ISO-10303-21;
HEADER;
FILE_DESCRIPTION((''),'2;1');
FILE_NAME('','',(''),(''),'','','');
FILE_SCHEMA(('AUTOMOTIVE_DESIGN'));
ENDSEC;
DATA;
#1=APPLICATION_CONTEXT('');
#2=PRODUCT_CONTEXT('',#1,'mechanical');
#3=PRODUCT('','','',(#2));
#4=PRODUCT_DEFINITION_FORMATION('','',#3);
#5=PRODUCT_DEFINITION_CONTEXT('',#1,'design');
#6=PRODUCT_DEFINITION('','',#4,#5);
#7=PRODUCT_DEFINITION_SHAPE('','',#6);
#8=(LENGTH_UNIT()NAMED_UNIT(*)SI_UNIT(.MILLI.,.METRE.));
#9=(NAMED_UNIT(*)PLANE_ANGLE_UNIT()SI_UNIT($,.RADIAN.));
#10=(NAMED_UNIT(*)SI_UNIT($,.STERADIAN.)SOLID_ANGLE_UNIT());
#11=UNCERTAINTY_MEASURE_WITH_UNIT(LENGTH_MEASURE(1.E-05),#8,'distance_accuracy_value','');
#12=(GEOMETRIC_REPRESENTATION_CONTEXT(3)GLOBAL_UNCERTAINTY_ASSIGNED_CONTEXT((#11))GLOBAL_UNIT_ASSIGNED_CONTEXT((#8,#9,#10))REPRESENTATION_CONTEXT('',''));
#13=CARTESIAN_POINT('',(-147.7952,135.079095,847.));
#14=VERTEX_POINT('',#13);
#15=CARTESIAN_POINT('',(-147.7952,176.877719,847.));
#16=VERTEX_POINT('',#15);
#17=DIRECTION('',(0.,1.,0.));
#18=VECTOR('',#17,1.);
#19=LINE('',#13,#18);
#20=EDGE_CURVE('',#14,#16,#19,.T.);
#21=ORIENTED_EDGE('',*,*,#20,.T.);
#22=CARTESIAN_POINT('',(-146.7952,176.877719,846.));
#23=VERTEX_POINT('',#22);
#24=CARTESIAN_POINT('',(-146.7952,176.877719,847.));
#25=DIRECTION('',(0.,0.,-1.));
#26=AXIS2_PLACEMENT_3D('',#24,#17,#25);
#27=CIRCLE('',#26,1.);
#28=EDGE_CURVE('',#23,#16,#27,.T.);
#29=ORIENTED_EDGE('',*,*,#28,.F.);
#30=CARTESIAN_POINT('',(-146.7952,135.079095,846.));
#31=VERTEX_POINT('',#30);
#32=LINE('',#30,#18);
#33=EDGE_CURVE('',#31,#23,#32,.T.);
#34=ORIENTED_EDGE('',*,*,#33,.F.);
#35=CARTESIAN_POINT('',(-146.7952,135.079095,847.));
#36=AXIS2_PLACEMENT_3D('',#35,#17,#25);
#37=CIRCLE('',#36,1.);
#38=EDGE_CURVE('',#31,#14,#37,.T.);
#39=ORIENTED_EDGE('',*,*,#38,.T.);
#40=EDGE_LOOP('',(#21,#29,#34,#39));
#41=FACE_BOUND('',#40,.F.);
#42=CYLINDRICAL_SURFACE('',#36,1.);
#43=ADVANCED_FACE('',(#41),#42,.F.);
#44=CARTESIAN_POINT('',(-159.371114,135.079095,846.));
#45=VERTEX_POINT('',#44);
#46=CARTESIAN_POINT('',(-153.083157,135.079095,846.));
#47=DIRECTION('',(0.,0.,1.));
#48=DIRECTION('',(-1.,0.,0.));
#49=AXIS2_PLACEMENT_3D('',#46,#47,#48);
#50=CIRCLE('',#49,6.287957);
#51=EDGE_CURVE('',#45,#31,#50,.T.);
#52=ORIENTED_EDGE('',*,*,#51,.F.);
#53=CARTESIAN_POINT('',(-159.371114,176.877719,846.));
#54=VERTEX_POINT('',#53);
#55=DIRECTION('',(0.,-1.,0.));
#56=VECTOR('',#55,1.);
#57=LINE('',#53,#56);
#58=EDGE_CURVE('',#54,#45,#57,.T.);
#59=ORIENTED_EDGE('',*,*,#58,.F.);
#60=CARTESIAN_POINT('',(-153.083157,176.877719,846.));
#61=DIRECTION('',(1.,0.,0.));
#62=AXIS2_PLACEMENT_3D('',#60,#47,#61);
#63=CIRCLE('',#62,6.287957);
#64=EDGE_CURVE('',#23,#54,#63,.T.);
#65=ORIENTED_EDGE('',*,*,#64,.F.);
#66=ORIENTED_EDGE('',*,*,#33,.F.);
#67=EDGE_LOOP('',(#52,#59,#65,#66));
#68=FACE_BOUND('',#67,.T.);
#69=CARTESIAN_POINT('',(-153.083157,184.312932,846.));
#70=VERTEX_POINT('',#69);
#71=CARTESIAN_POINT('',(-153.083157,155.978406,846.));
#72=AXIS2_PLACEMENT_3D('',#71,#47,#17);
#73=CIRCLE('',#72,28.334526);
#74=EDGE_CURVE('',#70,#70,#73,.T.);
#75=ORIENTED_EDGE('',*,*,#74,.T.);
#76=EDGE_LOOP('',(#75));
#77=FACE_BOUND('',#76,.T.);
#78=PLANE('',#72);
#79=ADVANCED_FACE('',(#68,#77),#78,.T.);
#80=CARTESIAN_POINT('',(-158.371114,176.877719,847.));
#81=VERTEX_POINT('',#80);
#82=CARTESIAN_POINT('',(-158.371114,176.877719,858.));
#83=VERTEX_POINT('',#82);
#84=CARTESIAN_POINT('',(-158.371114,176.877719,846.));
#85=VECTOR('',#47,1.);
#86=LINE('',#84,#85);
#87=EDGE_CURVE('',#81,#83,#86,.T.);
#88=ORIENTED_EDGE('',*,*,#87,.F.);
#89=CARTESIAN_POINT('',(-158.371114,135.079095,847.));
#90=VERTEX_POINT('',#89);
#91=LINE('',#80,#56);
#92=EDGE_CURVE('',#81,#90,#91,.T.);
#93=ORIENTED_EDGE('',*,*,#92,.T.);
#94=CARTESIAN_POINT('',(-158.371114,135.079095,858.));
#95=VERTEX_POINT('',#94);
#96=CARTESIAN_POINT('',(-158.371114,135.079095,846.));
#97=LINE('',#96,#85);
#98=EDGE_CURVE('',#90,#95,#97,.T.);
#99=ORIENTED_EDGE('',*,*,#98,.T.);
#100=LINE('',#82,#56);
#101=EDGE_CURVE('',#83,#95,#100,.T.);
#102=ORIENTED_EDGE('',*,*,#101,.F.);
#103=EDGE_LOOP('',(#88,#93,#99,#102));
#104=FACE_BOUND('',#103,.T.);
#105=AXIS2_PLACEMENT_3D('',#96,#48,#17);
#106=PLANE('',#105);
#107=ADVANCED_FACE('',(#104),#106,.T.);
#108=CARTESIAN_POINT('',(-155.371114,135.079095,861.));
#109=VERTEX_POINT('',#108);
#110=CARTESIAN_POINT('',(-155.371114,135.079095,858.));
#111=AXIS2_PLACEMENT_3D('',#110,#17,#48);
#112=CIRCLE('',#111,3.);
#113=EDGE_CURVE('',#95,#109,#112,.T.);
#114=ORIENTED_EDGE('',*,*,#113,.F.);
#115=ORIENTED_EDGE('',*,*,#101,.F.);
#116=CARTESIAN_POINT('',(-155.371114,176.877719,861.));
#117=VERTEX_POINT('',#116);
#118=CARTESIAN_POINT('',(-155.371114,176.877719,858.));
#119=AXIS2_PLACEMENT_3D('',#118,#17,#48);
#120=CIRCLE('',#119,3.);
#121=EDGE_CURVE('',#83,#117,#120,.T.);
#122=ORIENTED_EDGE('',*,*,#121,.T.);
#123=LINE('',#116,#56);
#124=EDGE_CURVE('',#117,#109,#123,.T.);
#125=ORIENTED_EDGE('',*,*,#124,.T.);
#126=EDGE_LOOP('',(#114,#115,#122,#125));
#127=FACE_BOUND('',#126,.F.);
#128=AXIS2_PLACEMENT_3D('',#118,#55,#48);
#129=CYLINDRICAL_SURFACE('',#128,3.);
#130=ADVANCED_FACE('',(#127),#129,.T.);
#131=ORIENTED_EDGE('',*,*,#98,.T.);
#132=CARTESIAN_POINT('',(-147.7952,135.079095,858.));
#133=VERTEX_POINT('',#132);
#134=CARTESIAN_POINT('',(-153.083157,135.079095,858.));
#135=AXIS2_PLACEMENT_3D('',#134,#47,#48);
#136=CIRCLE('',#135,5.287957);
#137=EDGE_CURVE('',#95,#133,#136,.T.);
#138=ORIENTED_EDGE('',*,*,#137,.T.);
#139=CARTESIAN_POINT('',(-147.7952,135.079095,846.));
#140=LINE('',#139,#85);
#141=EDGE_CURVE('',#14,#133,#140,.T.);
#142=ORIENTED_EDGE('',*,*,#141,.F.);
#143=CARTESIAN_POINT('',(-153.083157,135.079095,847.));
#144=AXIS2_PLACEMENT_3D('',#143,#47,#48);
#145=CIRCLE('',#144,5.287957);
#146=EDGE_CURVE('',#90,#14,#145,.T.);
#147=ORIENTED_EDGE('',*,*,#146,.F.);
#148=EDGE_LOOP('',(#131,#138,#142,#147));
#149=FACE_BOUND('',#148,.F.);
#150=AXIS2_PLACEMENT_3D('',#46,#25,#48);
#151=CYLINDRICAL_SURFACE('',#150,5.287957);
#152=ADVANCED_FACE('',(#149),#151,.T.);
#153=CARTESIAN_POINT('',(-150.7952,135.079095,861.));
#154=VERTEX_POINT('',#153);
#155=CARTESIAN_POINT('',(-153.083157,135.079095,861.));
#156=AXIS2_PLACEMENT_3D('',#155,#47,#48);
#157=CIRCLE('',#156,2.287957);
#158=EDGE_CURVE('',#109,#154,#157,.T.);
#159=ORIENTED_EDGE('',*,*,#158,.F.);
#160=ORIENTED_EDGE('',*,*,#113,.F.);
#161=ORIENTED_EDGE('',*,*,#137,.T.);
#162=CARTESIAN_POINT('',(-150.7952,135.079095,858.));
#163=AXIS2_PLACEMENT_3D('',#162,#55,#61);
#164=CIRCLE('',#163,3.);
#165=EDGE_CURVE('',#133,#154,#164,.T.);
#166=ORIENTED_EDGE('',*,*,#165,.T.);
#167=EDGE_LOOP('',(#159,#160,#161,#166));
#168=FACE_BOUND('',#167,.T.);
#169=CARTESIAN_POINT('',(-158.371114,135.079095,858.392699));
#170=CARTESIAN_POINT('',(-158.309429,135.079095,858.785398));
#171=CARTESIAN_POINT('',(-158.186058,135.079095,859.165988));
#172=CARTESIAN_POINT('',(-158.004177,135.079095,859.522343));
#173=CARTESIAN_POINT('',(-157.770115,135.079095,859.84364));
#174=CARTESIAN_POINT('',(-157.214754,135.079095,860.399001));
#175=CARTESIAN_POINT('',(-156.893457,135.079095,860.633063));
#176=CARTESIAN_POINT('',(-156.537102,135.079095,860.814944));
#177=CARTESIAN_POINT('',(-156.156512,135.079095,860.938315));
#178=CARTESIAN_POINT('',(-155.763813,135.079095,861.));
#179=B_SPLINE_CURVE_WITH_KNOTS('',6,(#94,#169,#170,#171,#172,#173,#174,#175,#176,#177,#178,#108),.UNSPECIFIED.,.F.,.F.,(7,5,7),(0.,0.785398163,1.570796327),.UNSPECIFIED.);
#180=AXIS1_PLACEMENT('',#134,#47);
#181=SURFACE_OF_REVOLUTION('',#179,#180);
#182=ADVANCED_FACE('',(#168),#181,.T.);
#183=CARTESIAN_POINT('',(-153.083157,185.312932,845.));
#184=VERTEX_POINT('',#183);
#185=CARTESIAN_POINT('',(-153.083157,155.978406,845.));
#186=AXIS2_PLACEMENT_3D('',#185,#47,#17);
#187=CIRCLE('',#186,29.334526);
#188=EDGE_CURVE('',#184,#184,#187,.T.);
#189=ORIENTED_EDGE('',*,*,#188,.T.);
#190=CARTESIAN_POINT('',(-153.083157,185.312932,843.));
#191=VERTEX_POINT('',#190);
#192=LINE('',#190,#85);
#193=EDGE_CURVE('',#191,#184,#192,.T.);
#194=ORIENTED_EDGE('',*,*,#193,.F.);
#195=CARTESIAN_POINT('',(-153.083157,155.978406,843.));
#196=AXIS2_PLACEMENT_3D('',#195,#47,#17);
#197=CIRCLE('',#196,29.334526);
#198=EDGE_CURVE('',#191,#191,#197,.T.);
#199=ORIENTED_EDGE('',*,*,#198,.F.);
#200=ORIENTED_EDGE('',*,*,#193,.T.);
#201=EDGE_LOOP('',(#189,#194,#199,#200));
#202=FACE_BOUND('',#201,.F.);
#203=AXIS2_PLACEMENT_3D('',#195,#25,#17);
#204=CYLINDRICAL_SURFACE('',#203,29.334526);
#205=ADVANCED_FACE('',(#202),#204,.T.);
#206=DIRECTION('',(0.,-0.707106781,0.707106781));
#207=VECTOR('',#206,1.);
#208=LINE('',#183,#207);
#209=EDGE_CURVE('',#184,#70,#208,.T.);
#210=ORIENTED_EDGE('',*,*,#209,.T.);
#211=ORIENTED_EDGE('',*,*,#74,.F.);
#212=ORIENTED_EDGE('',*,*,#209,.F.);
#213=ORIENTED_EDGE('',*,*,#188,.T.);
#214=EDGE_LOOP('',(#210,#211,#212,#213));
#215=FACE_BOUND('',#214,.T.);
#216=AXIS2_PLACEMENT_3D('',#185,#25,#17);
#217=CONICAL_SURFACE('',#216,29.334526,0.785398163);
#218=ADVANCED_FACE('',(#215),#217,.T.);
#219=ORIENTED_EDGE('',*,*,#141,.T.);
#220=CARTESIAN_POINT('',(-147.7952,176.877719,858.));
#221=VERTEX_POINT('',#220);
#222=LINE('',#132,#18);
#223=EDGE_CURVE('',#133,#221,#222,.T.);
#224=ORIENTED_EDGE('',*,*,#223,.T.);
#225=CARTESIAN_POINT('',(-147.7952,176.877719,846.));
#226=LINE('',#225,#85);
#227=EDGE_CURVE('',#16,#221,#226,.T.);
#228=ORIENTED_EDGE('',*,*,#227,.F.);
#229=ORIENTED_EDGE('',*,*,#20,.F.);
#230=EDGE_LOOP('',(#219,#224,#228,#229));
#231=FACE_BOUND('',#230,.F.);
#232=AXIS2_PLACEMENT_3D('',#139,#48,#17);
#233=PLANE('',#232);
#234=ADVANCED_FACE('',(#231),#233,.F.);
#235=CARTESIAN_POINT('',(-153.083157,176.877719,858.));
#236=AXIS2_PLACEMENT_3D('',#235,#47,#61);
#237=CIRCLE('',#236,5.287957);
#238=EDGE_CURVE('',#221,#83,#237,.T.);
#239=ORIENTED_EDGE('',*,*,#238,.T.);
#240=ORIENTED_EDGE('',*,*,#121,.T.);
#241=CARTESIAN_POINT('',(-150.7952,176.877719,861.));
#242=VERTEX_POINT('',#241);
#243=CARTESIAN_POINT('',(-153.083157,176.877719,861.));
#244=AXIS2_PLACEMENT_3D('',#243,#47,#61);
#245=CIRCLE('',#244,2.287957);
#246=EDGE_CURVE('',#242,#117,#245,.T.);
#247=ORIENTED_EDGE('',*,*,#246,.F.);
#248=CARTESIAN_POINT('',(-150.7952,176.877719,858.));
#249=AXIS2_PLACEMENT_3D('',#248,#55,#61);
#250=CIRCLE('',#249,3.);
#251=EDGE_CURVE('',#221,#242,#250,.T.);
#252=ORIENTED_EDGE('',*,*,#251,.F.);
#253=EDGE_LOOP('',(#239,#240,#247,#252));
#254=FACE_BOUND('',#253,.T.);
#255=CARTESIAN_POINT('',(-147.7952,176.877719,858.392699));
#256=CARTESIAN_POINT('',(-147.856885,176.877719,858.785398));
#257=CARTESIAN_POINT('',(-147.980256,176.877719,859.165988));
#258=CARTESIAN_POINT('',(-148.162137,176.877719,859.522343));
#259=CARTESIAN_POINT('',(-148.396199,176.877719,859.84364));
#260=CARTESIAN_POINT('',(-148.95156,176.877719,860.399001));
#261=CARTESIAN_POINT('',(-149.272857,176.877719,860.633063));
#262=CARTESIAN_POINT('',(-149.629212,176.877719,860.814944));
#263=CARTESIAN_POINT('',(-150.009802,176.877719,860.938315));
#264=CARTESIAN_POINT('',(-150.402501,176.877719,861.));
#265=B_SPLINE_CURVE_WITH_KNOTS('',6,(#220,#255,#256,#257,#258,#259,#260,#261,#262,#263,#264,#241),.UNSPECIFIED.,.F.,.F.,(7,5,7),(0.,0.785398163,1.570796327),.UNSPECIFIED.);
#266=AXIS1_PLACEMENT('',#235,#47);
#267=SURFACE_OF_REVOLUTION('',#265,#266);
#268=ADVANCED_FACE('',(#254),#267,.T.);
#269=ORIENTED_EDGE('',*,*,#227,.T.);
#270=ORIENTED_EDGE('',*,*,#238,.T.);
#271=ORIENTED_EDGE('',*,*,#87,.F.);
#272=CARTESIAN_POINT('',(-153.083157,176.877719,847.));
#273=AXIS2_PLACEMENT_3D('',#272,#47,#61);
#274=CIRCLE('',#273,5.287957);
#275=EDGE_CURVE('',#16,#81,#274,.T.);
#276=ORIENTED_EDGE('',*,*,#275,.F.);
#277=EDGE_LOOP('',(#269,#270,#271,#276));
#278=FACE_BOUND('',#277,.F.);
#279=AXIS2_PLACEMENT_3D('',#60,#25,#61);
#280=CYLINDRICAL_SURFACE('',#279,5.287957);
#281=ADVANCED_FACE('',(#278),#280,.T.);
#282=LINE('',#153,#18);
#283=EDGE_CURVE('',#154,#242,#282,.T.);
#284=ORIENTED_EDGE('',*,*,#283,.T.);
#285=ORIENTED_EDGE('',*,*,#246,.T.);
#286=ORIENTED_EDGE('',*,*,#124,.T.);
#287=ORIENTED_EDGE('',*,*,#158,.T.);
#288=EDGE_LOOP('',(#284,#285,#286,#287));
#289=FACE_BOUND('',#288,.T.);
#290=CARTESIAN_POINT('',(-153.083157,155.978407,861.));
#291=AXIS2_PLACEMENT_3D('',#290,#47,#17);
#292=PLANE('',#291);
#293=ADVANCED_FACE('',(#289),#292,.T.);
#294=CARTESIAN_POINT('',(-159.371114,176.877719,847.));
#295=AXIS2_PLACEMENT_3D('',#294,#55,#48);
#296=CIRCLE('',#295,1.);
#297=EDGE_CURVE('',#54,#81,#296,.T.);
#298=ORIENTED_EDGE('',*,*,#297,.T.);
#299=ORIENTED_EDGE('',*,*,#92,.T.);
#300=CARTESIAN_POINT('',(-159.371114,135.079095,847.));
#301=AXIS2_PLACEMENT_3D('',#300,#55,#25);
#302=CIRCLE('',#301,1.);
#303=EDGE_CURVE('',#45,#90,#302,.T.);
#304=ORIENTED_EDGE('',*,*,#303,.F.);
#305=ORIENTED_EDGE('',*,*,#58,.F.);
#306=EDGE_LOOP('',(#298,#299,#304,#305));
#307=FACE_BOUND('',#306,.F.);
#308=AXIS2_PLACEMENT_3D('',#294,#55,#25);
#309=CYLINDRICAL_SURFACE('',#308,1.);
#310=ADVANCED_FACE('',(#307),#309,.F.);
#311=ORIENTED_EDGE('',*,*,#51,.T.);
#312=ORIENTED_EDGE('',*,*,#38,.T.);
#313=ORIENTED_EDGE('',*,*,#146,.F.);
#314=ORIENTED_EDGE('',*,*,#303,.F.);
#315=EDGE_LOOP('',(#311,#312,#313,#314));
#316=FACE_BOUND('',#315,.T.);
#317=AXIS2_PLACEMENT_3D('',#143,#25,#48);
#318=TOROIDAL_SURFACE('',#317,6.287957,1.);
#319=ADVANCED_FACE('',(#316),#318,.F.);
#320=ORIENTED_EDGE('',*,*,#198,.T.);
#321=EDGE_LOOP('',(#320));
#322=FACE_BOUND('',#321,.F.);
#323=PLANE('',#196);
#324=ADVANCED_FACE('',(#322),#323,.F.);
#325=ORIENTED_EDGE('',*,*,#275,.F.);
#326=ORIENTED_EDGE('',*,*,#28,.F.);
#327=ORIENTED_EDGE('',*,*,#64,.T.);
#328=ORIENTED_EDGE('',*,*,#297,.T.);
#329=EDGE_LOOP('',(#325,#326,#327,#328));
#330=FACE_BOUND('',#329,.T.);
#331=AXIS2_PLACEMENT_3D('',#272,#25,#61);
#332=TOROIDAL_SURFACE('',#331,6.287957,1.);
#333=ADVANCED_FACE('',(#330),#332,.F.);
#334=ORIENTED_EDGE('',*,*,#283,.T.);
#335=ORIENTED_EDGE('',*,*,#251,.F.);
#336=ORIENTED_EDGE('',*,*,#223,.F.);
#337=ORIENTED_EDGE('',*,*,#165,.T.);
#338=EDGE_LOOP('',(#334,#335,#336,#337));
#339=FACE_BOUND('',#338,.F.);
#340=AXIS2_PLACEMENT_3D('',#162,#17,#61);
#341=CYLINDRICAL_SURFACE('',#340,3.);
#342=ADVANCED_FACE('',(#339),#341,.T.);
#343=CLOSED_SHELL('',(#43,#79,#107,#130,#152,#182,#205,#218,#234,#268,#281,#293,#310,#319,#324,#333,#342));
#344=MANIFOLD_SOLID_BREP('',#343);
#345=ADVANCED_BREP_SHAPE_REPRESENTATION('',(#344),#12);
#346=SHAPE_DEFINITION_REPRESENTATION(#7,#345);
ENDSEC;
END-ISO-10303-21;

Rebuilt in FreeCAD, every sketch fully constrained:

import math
import FreeCAD as App
import Part
import Sketcher

V = App.Vector


def edges_at(feature, points):
    """Names of the edges that pass closest to the given points."""
    edges = feature.Shape.Edges
    near = lambda p: min(range(len(edges)), key=lambda i: edges[i].distToShape(Part.Vertex(*p))[0])
    return sorted({f"Edge{near(p) + 1}" for p in points})

doc = App.newDocument("Part")
params = doc.addObject("Spreadsheet::Sheet", "Params")
for row, (alias, value) in enumerate([
    ("pad1_length", "3 mm"),
    ("pad2_length", "15 mm"),
    ("chamfer_size", "1 mm"),
    ("fillet_radius", "1 mm"),
    ("fillet2_radius", "3 mm"),
], start=1):
    params.set(f"A{row}", alias)
    params.set(f"B{row}", "=" + value)
    params.setAlias(f"B{row}", alias)

body = doc.addObject("PartDesign::Body", "Body")

# Sketch on XY plane
sketch1 = doc.addObject("Sketcher::SketchObject", "Sketch")
body.addObject(sketch1)
sketch1.AttachmentSupport = (doc.XY_Plane, [""])
sketch1.MapMode = "FlatFace"
sketch1.AttachmentOffset = App.Placement(V(0, 0, 843), App.Rotation())
sketch1.addGeometry(Part.Circle(V(-153, 156, 0), V(0, 0, 1), 29), False)
sketch1.addConstraint([
    Sketcher.Constraint("Diameter", 0, 58.669052),
    Sketcher.Constraint("DistanceX", 0, 3, -1, 1, 153.083157),
    Sketcher.Constraint("DistanceY", -1, 1, 0, 3, 155.978406),
])
pad1 = doc.addObject("PartDesign::Pad", "Pad")
body.addObject(pad1)
pad1.Profile = sketch1
pad1.setExpression("Length", "Params.pad1_length")

# Sketch on XY plane
sketch2 = doc.addObject("Sketcher::SketchObject", "Sketch001")
body.addObject(sketch2)
sketch2.AttachmentSupport = (doc.XY_Plane, [""])
sketch2.MapMode = "FlatFace"
sketch2.AttachmentOffset = App.Placement(V(0, 0, 846), App.Rotation())
sketch2.addGeometry([
    Part.ArcOfCircle(Part.Circle(V(-153, 135, 0), V(0, 0, 1), 5), math.radians(180), math.radians(360)),
    Part.LineSegment(V(-148, 135, 0), V(-148, 177, 0)),
    Part.ArcOfCircle(Part.Circle(V(-153, 177, 0), V(0, 0, 1), 5), math.radians(0), math.radians(180)),
    Part.LineSegment(V(-158, 177, 0), V(-158, 135, 0)),
], False)
sketch2.addConstraint([
    Sketcher.Constraint("Tangent", 0, 2, 1, 1),
    Sketcher.Constraint("Tangent", 1, 2, 2, 1),
    Sketcher.Constraint("Tangent", 2, 2, 3, 1),
    Sketcher.Constraint("Tangent", 3, 2, 0, 1),
    Sketcher.Constraint("Vertical", 1),
    Sketcher.Constraint("Vertical", 3),
    Sketcher.Constraint("Radius", 0, 5.287957),
    Sketcher.Constraint("DistanceX", 0, 2, -1, 1, 147.7952),
    Sketcher.Constraint("DistanceY", 1, 1, 1, 2, 41.798624),
    Sketcher.Constraint("DistanceY", -1, 1, 2, 3, 176.877719),
])
pad2 = doc.addObject("PartDesign::Pad", "Pad001")
body.addObject(pad2)
pad2.Profile = sketch2
pad2.setExpression("Length", "Params.pad2_length")
doc.recompute()

chamfer = doc.addObject("PartDesign::Chamfer", "Chamfer")
body.addObject(chamfer)
chamfer.Base = (pad2, edges_at(pad2, [(-153.083, 126.644, 846)]))
chamfer.setExpression("Size", "Params.chamfer_size")
doc.recompute()

fillet = doc.addObject("PartDesign::Fillet", "Fillet")
body.addObject(fillet)
fillet.Base = (chamfer, edges_at(chamfer, [(-147.795, 155.978, 846)]))
fillet.setExpression("Radius", "Params.fillet_radius")
doc.recompute()

fillet2 = doc.addObject("PartDesign::Fillet", "Fillet001")
body.addObject(fillet2)
fillet2.Base = (fillet, edges_at(fillet, [(-147.795, 155.978, 861)]))
fillet2.setExpression("Radius", "Params.fillet2_radius")

doc.recompute()
